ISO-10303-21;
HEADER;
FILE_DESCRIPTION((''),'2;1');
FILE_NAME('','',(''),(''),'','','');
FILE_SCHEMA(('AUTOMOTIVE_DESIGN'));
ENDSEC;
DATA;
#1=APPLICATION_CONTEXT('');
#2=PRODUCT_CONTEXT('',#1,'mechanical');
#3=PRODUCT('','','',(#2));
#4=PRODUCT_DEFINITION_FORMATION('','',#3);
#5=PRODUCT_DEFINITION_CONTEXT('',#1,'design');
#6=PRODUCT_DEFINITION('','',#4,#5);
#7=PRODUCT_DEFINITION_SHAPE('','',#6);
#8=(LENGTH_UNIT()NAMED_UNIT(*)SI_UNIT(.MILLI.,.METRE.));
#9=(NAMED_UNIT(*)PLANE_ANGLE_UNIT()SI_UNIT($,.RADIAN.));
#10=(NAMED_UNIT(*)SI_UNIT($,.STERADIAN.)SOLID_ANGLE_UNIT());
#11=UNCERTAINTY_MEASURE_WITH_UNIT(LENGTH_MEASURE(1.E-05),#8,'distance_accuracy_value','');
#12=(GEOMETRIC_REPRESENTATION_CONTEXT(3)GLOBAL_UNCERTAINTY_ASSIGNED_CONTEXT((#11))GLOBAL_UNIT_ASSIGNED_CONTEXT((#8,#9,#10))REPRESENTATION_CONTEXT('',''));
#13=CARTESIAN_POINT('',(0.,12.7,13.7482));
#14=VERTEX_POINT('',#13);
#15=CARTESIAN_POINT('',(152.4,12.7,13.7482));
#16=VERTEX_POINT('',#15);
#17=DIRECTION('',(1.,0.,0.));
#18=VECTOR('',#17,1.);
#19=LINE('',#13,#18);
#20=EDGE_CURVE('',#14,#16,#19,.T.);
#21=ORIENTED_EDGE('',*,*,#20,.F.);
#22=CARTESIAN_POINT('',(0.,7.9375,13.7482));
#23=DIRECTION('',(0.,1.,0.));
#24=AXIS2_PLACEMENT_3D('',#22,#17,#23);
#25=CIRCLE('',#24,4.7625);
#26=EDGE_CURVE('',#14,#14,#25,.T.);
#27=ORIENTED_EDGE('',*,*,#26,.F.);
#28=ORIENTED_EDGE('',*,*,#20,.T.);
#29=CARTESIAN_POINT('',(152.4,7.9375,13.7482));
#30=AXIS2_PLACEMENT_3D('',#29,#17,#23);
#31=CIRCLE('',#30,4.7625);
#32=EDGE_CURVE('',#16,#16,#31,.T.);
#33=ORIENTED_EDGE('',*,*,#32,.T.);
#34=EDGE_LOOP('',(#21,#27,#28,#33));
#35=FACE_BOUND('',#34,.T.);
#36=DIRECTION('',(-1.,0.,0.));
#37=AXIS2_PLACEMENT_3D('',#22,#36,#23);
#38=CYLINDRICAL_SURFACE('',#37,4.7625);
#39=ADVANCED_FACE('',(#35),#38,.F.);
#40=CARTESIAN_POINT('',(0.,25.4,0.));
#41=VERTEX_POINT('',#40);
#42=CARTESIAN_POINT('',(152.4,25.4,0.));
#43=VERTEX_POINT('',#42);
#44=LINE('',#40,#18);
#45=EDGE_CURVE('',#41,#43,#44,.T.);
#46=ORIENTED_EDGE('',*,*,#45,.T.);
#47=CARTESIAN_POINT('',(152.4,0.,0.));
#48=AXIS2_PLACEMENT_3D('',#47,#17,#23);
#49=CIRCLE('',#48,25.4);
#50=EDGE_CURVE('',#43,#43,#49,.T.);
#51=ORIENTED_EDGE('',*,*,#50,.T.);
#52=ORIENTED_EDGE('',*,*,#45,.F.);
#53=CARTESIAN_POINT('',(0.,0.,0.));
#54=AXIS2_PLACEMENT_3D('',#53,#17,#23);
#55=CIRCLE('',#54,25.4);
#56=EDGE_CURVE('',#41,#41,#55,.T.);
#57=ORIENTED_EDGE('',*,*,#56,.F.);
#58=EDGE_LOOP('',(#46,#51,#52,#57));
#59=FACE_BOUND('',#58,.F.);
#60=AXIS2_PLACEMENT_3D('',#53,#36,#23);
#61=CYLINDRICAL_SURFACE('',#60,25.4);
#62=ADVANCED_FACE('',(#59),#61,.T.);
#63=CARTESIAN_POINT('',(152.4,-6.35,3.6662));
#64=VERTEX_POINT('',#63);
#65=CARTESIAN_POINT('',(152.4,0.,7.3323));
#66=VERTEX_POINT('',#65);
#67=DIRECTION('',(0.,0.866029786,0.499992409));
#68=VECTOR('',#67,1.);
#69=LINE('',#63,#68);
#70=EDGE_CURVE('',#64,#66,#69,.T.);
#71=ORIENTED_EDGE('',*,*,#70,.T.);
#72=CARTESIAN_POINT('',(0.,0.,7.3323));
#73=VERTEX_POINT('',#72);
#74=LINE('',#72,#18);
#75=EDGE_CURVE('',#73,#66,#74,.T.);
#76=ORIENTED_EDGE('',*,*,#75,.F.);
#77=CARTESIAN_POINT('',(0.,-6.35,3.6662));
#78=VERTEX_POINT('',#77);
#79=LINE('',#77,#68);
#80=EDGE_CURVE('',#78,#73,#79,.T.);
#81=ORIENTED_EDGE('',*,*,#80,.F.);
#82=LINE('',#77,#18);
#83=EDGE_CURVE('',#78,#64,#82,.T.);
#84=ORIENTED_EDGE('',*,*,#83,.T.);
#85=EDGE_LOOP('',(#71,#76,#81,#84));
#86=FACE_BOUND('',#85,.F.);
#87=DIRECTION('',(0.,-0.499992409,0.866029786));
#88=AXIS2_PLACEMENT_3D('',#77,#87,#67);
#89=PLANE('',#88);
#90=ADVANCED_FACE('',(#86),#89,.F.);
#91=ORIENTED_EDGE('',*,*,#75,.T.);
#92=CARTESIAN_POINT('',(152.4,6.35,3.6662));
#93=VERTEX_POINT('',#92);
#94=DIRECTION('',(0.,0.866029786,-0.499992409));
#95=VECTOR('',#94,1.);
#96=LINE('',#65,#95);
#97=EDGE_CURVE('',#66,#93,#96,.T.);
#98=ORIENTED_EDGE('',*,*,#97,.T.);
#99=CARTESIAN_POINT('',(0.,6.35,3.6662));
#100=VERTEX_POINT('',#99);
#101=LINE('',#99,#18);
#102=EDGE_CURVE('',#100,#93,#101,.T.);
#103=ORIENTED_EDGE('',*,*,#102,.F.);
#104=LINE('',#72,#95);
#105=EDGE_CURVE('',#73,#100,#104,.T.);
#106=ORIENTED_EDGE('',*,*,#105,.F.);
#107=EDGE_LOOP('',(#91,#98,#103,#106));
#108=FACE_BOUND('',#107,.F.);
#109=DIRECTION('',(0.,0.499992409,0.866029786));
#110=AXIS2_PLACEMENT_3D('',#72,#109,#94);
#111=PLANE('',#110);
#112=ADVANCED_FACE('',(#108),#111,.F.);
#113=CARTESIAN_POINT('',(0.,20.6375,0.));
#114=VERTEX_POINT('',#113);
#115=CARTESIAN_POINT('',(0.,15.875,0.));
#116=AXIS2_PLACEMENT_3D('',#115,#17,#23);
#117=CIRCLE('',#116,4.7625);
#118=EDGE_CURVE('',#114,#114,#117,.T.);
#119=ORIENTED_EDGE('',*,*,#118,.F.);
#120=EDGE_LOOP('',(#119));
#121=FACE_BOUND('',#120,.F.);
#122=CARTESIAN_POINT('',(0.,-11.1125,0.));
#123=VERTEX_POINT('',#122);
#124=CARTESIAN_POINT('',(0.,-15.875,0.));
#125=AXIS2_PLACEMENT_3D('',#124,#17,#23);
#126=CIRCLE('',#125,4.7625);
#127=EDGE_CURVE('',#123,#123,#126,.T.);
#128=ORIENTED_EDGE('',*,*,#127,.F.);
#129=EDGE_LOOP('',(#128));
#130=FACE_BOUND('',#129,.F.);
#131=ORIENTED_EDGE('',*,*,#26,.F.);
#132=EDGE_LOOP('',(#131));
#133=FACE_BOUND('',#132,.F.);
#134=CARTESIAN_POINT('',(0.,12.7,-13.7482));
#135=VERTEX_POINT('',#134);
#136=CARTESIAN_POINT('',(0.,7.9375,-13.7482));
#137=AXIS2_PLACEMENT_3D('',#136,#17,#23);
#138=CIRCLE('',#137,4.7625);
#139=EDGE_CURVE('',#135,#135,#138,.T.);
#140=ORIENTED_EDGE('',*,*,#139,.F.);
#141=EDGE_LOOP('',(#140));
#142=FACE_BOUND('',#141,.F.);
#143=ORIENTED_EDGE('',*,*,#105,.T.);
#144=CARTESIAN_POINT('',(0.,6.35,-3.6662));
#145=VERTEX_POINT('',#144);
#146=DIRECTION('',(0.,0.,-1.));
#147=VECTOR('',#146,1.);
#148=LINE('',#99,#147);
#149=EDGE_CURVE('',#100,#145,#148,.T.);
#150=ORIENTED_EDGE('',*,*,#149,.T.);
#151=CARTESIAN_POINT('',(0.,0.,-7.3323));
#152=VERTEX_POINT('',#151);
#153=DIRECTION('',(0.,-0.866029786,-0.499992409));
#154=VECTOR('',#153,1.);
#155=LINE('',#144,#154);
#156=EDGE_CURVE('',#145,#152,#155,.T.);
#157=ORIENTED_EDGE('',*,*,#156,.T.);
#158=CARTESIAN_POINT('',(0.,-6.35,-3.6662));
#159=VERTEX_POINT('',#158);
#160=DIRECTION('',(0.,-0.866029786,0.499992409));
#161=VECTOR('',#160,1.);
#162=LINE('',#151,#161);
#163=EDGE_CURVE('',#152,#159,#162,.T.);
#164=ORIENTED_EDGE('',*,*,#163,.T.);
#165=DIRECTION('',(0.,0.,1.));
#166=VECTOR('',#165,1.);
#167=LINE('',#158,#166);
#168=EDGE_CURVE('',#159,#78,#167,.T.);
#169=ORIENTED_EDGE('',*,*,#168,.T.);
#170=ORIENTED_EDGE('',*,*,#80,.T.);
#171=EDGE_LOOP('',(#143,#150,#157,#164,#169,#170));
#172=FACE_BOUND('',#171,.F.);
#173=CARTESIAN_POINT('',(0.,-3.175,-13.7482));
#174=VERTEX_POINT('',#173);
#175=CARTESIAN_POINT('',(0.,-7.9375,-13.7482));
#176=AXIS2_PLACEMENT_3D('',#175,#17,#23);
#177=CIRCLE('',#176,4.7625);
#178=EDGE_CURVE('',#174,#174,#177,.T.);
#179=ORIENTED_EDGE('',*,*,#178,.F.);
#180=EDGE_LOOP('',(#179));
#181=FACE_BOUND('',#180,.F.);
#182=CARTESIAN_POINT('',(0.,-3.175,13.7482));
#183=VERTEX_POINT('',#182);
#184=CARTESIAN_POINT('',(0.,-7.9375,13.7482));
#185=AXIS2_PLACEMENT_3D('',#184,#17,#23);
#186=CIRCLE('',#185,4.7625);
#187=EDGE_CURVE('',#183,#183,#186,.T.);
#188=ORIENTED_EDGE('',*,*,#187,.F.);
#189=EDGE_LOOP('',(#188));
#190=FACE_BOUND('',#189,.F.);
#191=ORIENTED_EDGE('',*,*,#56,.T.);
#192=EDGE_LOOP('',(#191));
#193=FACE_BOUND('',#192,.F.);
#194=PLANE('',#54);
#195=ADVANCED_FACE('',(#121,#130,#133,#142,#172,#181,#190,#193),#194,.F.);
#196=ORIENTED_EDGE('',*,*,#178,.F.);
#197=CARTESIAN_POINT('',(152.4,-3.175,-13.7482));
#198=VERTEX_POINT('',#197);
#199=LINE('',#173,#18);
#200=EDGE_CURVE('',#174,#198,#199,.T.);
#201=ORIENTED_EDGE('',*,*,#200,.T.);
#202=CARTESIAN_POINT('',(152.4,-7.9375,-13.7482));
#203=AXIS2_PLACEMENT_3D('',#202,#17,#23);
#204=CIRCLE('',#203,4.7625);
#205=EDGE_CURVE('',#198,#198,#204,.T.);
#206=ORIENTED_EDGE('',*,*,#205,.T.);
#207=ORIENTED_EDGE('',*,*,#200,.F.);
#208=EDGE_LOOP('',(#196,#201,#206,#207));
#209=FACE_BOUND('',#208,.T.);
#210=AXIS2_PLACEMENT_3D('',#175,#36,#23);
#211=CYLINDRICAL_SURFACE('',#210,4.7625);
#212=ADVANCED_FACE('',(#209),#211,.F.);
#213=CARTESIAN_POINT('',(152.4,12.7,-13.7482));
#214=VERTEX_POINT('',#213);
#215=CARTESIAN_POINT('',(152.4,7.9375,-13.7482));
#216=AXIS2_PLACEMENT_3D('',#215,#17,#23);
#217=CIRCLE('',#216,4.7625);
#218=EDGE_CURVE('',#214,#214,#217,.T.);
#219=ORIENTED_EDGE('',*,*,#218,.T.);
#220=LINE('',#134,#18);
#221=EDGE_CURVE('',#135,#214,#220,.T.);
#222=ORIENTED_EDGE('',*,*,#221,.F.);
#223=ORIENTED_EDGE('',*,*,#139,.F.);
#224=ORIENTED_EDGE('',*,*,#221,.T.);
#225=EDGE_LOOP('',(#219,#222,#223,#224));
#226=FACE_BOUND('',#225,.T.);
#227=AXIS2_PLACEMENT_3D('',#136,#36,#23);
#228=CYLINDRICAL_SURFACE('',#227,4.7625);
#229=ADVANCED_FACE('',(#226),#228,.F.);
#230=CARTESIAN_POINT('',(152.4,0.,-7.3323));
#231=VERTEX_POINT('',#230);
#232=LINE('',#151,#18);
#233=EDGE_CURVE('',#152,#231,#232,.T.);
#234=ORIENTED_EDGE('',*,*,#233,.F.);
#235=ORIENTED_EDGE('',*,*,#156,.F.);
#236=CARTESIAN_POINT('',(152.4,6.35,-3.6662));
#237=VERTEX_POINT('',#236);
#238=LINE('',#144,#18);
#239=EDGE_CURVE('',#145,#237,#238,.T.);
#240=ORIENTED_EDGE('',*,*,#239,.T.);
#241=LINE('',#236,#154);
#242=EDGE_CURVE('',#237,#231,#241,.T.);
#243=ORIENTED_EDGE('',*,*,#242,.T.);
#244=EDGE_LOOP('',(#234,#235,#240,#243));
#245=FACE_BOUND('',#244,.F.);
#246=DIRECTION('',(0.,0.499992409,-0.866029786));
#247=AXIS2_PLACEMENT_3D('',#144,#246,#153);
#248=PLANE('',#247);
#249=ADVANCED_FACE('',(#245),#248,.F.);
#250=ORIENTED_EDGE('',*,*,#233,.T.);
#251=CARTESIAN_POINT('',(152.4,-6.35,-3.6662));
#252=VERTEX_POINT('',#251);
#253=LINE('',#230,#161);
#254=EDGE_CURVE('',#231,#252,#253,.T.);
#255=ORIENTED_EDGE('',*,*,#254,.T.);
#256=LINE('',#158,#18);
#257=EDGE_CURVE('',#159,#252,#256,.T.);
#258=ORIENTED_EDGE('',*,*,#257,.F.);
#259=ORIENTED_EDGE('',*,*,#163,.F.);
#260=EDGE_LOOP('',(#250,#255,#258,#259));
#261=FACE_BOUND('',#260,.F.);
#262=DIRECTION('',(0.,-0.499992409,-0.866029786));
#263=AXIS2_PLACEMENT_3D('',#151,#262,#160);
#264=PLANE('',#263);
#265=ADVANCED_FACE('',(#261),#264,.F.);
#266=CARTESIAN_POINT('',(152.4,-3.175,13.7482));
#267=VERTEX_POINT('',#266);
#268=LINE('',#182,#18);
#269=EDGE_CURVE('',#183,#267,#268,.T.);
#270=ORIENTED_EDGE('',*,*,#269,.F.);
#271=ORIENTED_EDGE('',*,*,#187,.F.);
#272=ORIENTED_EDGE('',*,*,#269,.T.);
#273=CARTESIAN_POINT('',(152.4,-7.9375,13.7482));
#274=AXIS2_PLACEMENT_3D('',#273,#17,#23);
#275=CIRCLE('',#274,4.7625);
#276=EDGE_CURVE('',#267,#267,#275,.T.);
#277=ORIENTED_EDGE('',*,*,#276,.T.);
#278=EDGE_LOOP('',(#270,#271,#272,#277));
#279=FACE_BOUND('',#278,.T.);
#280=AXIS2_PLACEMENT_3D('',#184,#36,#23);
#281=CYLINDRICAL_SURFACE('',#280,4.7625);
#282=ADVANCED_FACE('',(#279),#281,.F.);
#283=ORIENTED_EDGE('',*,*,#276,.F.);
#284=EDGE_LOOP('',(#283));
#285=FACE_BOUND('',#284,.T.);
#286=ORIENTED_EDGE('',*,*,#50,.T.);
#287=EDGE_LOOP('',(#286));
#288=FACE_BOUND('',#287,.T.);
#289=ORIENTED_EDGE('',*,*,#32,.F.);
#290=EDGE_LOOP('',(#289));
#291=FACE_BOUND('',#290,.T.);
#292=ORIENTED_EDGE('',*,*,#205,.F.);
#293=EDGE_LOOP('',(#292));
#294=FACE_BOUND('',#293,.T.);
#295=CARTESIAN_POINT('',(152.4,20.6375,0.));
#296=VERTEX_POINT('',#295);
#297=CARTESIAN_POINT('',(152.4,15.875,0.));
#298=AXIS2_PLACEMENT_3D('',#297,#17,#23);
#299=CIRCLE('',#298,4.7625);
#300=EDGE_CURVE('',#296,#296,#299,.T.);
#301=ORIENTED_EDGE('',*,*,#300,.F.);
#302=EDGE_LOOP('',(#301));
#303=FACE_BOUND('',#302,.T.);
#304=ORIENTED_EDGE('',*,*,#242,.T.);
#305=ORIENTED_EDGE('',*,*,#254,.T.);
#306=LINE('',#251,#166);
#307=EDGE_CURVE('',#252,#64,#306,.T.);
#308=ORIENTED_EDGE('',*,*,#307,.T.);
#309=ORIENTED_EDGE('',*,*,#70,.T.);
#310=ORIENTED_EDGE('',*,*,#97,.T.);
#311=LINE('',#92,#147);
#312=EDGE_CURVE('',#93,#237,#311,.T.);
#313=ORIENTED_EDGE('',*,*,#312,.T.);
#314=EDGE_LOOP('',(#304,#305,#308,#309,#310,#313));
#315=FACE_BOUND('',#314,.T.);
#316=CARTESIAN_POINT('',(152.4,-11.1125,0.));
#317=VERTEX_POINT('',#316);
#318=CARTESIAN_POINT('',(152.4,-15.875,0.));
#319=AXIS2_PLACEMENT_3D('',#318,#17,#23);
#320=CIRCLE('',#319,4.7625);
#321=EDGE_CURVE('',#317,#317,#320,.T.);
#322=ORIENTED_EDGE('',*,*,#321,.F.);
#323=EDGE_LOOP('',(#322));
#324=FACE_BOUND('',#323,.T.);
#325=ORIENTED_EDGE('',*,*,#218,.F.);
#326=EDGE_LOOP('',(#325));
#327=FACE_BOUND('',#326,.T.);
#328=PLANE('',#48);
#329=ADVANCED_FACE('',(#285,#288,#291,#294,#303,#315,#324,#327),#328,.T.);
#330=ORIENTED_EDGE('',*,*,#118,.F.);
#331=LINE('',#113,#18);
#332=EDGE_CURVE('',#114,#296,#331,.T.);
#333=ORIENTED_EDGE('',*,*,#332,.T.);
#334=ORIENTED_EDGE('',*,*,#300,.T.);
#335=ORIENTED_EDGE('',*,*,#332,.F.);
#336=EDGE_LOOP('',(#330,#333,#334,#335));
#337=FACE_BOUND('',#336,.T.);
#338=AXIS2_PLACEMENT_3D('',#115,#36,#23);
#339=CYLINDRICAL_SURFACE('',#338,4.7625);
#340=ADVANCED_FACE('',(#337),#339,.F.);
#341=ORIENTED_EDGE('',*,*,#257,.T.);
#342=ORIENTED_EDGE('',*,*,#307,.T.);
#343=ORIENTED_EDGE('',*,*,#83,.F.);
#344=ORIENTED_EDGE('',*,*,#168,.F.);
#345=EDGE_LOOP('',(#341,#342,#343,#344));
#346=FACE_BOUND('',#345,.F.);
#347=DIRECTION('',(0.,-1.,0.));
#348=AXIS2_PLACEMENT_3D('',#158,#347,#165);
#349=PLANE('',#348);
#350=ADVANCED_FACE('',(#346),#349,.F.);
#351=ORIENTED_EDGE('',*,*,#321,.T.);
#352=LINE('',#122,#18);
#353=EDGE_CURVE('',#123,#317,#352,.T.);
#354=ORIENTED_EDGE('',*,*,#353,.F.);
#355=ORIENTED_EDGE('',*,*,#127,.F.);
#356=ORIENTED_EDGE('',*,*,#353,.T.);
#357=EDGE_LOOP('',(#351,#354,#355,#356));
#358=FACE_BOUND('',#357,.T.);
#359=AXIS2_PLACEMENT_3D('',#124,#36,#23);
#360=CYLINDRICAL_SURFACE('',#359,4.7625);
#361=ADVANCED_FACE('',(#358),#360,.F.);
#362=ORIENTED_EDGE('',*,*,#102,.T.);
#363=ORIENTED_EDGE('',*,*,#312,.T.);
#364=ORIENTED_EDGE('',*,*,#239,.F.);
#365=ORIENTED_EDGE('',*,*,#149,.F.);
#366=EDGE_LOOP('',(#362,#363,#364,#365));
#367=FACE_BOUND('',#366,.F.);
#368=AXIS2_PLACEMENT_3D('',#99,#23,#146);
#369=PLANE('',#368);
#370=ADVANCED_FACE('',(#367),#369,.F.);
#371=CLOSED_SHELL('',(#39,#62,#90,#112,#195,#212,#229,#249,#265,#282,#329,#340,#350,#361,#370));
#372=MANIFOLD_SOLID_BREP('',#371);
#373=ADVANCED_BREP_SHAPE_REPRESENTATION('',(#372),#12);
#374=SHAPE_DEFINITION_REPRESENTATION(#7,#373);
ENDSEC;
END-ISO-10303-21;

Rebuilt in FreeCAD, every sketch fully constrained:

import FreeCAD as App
import Part
import Sketcher

V = App.Vector
Q = App.Units.Quantity


def add_polygon(sketch, points):
    """Adds a closed chain of lines whose ends are joined by coincident constraints."""
    first, n = sketch.GeometryCount, len(points)
    for a, b in zip(points, points[1:] + points[:1]):
        sketch.addGeometry(Part.LineSegment(App.Vector(*a, 0), App.Vector(*b, 0)), False)
    for i in range(n):
        sketch.addConstraint(Sketcher.Constraint("Coincident", first + i, 2, first + (i + 1) % n, 1))

doc = App.newDocument("Part")
body = doc.addObject("PartDesign::Body", "Body")

sketch1 = doc.addObject("Sketcher::SketchObject", "Sketch")
body.addObject(sketch1)
sketch1.AttachmentSupport = (doc.YZ_Plane, [""])
sketch1.MapMode = "FlatFace"
sketch1.addGeometry(Part.Circle(V(0, 0, 0), V(0, 0, 1), 25.4), False)
sketch1.addGeometry(Part.Circle(V(-7.9, -13.7, 0), V(0, 0, 1), 4.8), False)
sketch1.addGeometry(Part.Circle(V(-15.9, 0, 0), V(0, 0, 1), 4.8), False)
add_polygon(sketch1, [(6.3, -3.7), (0, -7.3), (-6.3, -3.7), (-6.3, 3.7), (0, 7.3), (6.3, 3.7)])
sketch1.addGeometry(Part.Circle(V(7.9, -13.7, 0), V(0, 0, 1), 4.8), False)
sketch1.addGeometry(Part.Circle(V(15.9, 0, 0), V(0, 0, 1), 4.8), False)
sketch1.addGeometry(Part.Circle(V(-7.9, 13.7, 0), V(0, 0, 1), 4.8), False)
sketch1.addGeometry(Part.Circle(V(7.9, 13.7, 0), V(0, 0, 1), 4.8), False)
sketch1.addConstraint([
    Sketcher.Constraint("Vertical", 5),
    Sketcher.Constraint("Vertical", 8),
    Sketcher.Constraint("Coincident", 0, 3, -1, 1),
    Sketcher.Constraint("Equal", 1, 2),
    Sketcher.Constraint("Equal", 2, 9),
    Sketcher.Constraint("Equal", 9, 10),
    Sketcher.Constraint("Equal", 10, 11),
    Sketcher.Constraint("Equal", 11, 12),
    Sketcher.Constraint("Symmetric", 2, 3, 10, 3, -1, 1),
    Sketcher.Constraint("Symmetric", 9, 3, 11, 3, -1, 1),
    Sketcher.Constraint("Symmetric", 1, 3, 12, 3, -1, 1),
    Sketcher.Constraint("Symmetric", 3, 2, 6, 2, -1, 1),
    Sketcher.Constraint("Symmetric", 4, 2, 7, 2, -1, 1),
    Sketcher.Constraint("Symmetric", 1, 3, 9, 3, -2),
    Sketcher.Constraint("PointOnObject", 2, 3, -1),
    Sketcher.Constraint("PointOnObject", 3, 2, -2),
    Sketcher.Constraint("Parallel", 3, 6),
    Sketcher.Constraint("Horizontal", 5, 2, 7, 2),
    Sketcher.Constraint("Diameter", 0, Q("2 in")),
    Sketcher.Constraint("Diameter", 1, Q("0.375 in")),
    Sketcher.Constraint("DistanceX", 2, 3, -1, 1, Q("0.625 in")),
    Sketcher.Constraint("Angle", 3, Q("-150.0005 deg")),
    Sketcher.Constraint("DistanceX", 1, 3, 9, 3, Q("0.625 in")),
    Sketcher.Constraint("DistanceX", 2, 3, 4, 2, Q("0.375 in")),
    Sketcher.Constraint("DistanceY", 3, 2, 5, 2, Q("0.433 in")),
    Sketcher.Constraint("DistanceY", 1, 3, 3, 2, Q("0.2526 in")),
])
pad1 = doc.addObject("PartDesign::Pad", "Pad")
body.addObject(pad1)
pad1.Profile = sketch1
pad1.Length = Q("6 in")

doc.recompute()
